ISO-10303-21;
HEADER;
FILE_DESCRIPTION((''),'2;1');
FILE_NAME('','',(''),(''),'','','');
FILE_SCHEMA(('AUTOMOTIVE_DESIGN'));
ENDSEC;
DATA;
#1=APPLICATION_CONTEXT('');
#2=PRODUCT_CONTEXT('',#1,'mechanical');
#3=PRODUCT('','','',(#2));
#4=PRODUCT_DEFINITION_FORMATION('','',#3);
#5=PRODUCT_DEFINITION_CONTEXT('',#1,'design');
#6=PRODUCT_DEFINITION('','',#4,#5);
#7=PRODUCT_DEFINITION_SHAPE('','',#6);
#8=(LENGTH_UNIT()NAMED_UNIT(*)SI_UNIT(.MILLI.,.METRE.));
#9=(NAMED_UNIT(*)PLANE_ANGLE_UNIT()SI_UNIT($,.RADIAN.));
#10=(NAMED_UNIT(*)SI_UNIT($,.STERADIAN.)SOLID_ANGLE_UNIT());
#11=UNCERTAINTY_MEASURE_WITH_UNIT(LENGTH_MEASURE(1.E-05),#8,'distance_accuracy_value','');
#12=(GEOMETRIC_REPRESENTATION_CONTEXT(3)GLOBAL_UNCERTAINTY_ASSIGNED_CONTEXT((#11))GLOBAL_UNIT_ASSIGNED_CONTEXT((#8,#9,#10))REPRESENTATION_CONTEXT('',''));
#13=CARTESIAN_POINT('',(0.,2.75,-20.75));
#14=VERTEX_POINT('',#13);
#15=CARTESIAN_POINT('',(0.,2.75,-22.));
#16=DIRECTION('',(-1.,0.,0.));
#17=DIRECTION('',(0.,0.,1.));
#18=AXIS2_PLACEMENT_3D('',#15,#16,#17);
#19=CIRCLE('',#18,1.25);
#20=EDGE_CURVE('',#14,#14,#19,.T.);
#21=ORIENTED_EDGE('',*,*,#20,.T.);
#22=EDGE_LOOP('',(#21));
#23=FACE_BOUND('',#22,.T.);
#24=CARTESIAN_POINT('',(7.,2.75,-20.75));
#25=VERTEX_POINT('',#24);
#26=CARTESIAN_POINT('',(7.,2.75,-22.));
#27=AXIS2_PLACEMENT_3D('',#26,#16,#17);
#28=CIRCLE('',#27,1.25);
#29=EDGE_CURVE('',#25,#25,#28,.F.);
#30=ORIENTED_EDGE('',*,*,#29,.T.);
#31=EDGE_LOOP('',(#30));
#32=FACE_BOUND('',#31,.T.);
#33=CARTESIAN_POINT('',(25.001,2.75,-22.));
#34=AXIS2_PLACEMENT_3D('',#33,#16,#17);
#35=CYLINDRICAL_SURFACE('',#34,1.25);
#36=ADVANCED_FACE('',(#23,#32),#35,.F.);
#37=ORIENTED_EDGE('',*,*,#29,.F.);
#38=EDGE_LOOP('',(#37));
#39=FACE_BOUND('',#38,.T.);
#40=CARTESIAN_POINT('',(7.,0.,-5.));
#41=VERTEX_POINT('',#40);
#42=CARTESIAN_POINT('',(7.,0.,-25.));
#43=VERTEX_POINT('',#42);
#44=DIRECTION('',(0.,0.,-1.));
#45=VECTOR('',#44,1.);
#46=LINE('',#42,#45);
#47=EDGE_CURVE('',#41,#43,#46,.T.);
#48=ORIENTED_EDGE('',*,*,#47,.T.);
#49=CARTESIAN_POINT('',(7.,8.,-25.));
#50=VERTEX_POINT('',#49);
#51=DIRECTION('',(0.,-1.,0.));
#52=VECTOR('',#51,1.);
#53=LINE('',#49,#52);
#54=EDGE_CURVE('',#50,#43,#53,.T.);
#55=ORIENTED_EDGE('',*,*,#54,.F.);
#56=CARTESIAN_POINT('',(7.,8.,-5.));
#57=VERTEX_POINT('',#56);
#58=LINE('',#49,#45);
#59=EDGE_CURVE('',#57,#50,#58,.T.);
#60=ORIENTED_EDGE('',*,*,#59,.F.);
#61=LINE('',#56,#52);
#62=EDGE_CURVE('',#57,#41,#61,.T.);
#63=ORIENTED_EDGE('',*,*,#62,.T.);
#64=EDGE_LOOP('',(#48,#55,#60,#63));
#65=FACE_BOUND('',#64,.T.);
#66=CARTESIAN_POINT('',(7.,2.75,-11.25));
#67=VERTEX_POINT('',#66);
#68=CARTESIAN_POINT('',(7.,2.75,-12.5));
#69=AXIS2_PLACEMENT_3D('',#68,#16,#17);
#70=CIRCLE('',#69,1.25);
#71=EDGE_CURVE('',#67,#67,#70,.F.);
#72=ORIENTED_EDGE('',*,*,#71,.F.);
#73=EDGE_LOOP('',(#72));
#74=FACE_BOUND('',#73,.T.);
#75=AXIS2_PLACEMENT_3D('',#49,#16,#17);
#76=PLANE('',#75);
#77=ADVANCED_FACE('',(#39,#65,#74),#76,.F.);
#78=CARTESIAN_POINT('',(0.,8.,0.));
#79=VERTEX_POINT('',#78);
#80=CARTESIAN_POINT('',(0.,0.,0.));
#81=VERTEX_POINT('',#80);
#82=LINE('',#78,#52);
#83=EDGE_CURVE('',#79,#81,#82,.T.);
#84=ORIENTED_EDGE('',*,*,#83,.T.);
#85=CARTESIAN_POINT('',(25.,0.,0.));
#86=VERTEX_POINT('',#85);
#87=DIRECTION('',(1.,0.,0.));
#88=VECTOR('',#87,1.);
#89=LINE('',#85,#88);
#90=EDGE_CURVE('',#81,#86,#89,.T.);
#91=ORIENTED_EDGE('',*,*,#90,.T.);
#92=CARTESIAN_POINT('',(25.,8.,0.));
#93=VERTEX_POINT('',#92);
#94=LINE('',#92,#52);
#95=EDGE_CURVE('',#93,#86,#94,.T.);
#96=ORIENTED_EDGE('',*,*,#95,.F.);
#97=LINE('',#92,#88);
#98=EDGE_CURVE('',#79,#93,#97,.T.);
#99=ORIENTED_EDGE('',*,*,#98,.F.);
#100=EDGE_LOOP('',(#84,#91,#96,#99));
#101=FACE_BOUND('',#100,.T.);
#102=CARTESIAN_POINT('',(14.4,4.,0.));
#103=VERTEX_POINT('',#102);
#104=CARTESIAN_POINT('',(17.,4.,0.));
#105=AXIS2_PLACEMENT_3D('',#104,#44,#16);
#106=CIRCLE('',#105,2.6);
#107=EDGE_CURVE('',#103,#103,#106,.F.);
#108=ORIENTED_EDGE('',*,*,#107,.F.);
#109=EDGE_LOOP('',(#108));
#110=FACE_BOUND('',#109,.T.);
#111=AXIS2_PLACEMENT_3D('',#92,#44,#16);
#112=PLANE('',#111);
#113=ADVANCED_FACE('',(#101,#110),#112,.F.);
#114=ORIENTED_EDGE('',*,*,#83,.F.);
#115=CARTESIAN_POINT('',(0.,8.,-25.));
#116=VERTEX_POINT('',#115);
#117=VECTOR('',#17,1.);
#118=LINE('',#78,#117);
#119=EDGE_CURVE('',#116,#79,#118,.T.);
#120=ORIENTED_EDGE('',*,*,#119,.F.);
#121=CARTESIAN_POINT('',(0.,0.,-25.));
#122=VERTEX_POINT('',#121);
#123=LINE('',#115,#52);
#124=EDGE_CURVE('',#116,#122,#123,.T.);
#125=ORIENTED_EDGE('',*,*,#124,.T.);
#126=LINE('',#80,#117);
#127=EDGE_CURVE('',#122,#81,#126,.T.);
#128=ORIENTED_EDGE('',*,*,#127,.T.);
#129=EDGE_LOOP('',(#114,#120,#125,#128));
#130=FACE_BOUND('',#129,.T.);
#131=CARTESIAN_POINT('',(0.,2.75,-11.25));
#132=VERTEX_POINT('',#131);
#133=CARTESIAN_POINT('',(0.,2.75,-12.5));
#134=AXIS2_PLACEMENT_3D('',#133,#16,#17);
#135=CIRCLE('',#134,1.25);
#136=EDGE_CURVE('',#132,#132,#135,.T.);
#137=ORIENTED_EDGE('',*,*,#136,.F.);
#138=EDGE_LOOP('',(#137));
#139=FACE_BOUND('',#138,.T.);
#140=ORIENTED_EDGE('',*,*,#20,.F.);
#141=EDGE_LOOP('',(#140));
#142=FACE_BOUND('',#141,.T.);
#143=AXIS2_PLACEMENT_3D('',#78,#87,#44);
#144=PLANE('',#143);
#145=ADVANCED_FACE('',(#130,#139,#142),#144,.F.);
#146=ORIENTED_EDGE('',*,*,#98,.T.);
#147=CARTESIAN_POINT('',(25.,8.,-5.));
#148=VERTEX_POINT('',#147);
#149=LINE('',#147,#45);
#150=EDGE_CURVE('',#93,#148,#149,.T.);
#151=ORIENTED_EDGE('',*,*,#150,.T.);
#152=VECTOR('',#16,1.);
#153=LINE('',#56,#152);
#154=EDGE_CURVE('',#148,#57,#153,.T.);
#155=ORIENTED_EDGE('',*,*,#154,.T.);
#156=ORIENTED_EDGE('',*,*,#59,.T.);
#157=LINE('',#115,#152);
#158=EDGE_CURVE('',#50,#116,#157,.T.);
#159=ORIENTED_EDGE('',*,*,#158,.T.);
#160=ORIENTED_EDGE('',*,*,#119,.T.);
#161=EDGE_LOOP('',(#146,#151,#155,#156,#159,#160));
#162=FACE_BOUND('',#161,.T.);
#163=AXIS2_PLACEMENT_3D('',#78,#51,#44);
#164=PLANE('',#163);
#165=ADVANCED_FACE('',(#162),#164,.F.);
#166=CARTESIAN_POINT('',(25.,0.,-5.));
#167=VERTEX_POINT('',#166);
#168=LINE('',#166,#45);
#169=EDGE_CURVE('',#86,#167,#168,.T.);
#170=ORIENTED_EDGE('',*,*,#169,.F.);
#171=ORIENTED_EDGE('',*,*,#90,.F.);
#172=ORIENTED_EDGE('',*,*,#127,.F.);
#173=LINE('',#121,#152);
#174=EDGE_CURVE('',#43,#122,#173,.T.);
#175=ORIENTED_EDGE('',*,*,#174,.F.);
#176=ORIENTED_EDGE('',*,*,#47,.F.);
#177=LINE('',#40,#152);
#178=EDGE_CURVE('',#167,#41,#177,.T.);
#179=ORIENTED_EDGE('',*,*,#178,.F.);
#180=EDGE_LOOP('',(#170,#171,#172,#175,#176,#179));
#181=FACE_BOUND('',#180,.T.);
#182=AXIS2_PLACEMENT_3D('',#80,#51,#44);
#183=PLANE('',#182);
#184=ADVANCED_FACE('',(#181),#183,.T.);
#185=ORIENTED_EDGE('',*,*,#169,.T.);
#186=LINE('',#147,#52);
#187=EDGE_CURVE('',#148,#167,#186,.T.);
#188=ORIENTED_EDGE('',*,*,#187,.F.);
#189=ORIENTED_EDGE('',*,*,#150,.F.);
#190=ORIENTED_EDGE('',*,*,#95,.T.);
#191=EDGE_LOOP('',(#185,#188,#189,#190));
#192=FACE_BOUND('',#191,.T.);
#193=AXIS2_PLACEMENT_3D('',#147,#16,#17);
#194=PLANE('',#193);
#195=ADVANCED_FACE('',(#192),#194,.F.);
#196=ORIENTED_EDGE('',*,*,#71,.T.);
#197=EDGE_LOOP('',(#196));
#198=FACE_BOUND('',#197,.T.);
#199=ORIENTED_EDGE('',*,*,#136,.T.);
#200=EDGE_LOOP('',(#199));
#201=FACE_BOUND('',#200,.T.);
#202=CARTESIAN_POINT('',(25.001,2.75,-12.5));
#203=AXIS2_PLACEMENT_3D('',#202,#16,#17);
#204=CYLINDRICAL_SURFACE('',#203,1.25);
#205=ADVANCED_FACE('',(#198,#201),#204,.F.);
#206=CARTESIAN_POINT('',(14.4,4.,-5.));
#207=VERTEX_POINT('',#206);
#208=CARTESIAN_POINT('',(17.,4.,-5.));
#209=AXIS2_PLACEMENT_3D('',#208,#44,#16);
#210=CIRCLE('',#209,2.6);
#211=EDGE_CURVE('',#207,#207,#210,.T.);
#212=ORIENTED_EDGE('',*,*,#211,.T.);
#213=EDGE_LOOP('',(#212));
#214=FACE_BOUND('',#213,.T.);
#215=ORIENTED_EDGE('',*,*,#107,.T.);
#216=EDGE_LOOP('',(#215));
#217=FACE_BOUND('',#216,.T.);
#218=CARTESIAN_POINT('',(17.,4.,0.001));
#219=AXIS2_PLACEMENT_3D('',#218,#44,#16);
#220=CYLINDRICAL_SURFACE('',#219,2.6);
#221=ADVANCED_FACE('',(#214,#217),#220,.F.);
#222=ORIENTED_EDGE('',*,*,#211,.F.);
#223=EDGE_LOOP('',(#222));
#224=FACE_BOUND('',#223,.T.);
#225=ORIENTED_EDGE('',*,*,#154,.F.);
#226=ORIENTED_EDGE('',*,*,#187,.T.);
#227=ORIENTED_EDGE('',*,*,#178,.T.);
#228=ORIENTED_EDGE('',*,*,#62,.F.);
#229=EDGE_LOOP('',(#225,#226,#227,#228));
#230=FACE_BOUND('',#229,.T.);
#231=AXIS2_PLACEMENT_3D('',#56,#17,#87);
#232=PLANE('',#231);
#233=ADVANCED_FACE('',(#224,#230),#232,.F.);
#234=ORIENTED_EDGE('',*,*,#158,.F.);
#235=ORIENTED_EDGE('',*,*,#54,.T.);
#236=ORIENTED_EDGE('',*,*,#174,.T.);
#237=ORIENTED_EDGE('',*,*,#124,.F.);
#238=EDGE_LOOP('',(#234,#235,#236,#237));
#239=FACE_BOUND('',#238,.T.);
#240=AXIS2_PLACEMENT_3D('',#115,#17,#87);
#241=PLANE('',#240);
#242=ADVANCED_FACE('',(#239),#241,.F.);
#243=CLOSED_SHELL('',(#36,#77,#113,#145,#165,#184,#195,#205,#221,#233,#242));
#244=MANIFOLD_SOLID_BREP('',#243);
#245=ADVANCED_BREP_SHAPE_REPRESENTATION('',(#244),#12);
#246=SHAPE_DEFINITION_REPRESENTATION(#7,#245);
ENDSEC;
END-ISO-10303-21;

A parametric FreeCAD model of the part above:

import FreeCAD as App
import Part
import Sketcher
Q = App.Units.Quantity


def add_polygon(sketch, points):
    """Adds a closed chain of lines whose ends are joined by coincident constraints."""
    first, n = sketch.GeometryCount, len(points)
    for a, b in zip(points, points[1:] + points[:1]):
        sketch.addGeometry(Part.LineSegment(App.Vector(*a, 0), App.Vector(*b, 0)), False)
    for i in range(n):
        sketch.addConstraint(Sketcher.Constraint("Coincident", first + i, 2, first + (i + 1) % n, 1))

doc = App.newDocument("Part")
body = doc.addObject("PartDesign::Body", "Body")

sketch1 = doc.addObject("Sketcher::SketchObject", "Sketch")
body.addObject(sketch1)
sketch1.AttachmentSupport = (doc.XZ_Plane, [""])
sketch1.MapMode = "FlatFace"
add_polygon(sketch1, [(0, -25), (0, 0), (25, 0), (25, -5), (7, -5), (7, -25)])
sketch1.addConstraint([
    Sketcher.Constraint("Vertical", 0),
    Sketcher.Constraint("Horizontal", 1),
    Sketcher.Constraint("Vertical", 2),
    Sketcher.Constraint("Horizontal", 3),
    Sketcher.Constraint("Vertical", 4),
    Sketcher.Constraint("Horizontal", 5),
    Sketcher.Constraint("Coincident", 0, 2, -1, 1),
    Sketcher.Constraint("Equal", 1, 0),
    Sketcher.Constraint("DistanceX", 1, 1, 1, 2, Q("25 mm")),
    Sketcher.Constraint("DistanceX", 3, 2, 3, 1, Q("18 mm")),
    Sketcher.Constraint("DistanceY", 2, 2, 2, 1, Q("5 mm")),
])
pad1 = doc.addObject("PartDesign::Pad", "Pad")
body.addObject(pad1)
pad1.Profile = sketch1
pad1.Length = 8
pad1.Reversed = True

sketch2 = doc.addObject("Sketcher::SketchObject", "Sketch001")
body.addObject(sketch2)
sketch2.AttachmentSupport = (doc.YZ_Plane, [""])
sketch2.MapMode = "FlatFace"
sketch2.addGeometry(Part.Circle(App.Vector(2.8, -22, 0), App.Vector(0, 0, 1), 1.2), False)
sketch2.addConstraint([
    Sketcher.Constraint("Diameter", 0, Q("2.5 mm")),
    Sketcher.Constraint("DistanceY", 0, 3, -1, 1, Q("22 mm")),
    Sketcher.Constraint("DistanceX", -1, 1, 0, 3, Q("2.75 mm")),
])
pocket1 = doc.addObject("PartDesign::Pocket", "Pocket")
body.addObject(pocket1)
pocket1.Profile = sketch2
pocket1.Type = "UpToFirst"
pocket1.Reversed = True

sketch3 = doc.addObject("Sketcher::SketchObject", "Sketch002")
body.addObject(sketch3)
sketch3.AttachmentSupport = (doc.YZ_Plane, [""])
sketch3.MapMode = "FlatFace"
sketch3.addGeometry(Part.Circle(App.Vector(2.8, -12.5, 0), App.Vector(0, 0, 1), 1.2), False)
sketch3.addConstraint([
    Sketcher.Constraint("Diameter", 0, Q("2.5 mm")),
    Sketcher.Constraint("DistanceY", 0, 3, -1, 1, Q("12.5 mm")),
    Sketcher.Constraint("DistanceX", -1, 1, 0, 3, Q("2.75 mm")),
])
pocket2 = doc.addObject("PartDesign::Pocket", "Pocket001")
body.addObject(pocket2)
pocket2.Profile = sketch3
pocket2.Type = "UpToFirst"
pocket2.Reversed = True

sketch4 = doc.addObject("Sketcher::SketchObject", "Sketch003")
body.addObject(sketch4)
sketch4.AttachmentSupport = (doc.XY_Plane, [""])
sketch4.MapMode = "FlatFace"
sketch4.AttachmentOffset = App.Placement(App.Vector(0, 0, -5), App.Rotation())
sketch4.addGeometry(Part.Circle(App.Vector(17, 4, 0), App.Vector(0, 0, 1), 2.6), False)
sketch4.addConstraint([
    Sketcher.Constraint("Diameter", 0, Q("5.2 mm")),
    Sketcher.Constraint("DistanceX", -1, 1, 0, 3, Q("17 mm")),
    Sketcher.Constraint("DistanceY", -1, 1, 0, 3, Q("4 mm")),
])
pocket3 = doc.addObject("PartDesign::Pocket", "Pocket002")
body.addObject(pocket3)
pocket3.Profile = sketch4
pocket3.Type = "UpToFirst"
pocket3.Reversed = True

doc.recompute()
